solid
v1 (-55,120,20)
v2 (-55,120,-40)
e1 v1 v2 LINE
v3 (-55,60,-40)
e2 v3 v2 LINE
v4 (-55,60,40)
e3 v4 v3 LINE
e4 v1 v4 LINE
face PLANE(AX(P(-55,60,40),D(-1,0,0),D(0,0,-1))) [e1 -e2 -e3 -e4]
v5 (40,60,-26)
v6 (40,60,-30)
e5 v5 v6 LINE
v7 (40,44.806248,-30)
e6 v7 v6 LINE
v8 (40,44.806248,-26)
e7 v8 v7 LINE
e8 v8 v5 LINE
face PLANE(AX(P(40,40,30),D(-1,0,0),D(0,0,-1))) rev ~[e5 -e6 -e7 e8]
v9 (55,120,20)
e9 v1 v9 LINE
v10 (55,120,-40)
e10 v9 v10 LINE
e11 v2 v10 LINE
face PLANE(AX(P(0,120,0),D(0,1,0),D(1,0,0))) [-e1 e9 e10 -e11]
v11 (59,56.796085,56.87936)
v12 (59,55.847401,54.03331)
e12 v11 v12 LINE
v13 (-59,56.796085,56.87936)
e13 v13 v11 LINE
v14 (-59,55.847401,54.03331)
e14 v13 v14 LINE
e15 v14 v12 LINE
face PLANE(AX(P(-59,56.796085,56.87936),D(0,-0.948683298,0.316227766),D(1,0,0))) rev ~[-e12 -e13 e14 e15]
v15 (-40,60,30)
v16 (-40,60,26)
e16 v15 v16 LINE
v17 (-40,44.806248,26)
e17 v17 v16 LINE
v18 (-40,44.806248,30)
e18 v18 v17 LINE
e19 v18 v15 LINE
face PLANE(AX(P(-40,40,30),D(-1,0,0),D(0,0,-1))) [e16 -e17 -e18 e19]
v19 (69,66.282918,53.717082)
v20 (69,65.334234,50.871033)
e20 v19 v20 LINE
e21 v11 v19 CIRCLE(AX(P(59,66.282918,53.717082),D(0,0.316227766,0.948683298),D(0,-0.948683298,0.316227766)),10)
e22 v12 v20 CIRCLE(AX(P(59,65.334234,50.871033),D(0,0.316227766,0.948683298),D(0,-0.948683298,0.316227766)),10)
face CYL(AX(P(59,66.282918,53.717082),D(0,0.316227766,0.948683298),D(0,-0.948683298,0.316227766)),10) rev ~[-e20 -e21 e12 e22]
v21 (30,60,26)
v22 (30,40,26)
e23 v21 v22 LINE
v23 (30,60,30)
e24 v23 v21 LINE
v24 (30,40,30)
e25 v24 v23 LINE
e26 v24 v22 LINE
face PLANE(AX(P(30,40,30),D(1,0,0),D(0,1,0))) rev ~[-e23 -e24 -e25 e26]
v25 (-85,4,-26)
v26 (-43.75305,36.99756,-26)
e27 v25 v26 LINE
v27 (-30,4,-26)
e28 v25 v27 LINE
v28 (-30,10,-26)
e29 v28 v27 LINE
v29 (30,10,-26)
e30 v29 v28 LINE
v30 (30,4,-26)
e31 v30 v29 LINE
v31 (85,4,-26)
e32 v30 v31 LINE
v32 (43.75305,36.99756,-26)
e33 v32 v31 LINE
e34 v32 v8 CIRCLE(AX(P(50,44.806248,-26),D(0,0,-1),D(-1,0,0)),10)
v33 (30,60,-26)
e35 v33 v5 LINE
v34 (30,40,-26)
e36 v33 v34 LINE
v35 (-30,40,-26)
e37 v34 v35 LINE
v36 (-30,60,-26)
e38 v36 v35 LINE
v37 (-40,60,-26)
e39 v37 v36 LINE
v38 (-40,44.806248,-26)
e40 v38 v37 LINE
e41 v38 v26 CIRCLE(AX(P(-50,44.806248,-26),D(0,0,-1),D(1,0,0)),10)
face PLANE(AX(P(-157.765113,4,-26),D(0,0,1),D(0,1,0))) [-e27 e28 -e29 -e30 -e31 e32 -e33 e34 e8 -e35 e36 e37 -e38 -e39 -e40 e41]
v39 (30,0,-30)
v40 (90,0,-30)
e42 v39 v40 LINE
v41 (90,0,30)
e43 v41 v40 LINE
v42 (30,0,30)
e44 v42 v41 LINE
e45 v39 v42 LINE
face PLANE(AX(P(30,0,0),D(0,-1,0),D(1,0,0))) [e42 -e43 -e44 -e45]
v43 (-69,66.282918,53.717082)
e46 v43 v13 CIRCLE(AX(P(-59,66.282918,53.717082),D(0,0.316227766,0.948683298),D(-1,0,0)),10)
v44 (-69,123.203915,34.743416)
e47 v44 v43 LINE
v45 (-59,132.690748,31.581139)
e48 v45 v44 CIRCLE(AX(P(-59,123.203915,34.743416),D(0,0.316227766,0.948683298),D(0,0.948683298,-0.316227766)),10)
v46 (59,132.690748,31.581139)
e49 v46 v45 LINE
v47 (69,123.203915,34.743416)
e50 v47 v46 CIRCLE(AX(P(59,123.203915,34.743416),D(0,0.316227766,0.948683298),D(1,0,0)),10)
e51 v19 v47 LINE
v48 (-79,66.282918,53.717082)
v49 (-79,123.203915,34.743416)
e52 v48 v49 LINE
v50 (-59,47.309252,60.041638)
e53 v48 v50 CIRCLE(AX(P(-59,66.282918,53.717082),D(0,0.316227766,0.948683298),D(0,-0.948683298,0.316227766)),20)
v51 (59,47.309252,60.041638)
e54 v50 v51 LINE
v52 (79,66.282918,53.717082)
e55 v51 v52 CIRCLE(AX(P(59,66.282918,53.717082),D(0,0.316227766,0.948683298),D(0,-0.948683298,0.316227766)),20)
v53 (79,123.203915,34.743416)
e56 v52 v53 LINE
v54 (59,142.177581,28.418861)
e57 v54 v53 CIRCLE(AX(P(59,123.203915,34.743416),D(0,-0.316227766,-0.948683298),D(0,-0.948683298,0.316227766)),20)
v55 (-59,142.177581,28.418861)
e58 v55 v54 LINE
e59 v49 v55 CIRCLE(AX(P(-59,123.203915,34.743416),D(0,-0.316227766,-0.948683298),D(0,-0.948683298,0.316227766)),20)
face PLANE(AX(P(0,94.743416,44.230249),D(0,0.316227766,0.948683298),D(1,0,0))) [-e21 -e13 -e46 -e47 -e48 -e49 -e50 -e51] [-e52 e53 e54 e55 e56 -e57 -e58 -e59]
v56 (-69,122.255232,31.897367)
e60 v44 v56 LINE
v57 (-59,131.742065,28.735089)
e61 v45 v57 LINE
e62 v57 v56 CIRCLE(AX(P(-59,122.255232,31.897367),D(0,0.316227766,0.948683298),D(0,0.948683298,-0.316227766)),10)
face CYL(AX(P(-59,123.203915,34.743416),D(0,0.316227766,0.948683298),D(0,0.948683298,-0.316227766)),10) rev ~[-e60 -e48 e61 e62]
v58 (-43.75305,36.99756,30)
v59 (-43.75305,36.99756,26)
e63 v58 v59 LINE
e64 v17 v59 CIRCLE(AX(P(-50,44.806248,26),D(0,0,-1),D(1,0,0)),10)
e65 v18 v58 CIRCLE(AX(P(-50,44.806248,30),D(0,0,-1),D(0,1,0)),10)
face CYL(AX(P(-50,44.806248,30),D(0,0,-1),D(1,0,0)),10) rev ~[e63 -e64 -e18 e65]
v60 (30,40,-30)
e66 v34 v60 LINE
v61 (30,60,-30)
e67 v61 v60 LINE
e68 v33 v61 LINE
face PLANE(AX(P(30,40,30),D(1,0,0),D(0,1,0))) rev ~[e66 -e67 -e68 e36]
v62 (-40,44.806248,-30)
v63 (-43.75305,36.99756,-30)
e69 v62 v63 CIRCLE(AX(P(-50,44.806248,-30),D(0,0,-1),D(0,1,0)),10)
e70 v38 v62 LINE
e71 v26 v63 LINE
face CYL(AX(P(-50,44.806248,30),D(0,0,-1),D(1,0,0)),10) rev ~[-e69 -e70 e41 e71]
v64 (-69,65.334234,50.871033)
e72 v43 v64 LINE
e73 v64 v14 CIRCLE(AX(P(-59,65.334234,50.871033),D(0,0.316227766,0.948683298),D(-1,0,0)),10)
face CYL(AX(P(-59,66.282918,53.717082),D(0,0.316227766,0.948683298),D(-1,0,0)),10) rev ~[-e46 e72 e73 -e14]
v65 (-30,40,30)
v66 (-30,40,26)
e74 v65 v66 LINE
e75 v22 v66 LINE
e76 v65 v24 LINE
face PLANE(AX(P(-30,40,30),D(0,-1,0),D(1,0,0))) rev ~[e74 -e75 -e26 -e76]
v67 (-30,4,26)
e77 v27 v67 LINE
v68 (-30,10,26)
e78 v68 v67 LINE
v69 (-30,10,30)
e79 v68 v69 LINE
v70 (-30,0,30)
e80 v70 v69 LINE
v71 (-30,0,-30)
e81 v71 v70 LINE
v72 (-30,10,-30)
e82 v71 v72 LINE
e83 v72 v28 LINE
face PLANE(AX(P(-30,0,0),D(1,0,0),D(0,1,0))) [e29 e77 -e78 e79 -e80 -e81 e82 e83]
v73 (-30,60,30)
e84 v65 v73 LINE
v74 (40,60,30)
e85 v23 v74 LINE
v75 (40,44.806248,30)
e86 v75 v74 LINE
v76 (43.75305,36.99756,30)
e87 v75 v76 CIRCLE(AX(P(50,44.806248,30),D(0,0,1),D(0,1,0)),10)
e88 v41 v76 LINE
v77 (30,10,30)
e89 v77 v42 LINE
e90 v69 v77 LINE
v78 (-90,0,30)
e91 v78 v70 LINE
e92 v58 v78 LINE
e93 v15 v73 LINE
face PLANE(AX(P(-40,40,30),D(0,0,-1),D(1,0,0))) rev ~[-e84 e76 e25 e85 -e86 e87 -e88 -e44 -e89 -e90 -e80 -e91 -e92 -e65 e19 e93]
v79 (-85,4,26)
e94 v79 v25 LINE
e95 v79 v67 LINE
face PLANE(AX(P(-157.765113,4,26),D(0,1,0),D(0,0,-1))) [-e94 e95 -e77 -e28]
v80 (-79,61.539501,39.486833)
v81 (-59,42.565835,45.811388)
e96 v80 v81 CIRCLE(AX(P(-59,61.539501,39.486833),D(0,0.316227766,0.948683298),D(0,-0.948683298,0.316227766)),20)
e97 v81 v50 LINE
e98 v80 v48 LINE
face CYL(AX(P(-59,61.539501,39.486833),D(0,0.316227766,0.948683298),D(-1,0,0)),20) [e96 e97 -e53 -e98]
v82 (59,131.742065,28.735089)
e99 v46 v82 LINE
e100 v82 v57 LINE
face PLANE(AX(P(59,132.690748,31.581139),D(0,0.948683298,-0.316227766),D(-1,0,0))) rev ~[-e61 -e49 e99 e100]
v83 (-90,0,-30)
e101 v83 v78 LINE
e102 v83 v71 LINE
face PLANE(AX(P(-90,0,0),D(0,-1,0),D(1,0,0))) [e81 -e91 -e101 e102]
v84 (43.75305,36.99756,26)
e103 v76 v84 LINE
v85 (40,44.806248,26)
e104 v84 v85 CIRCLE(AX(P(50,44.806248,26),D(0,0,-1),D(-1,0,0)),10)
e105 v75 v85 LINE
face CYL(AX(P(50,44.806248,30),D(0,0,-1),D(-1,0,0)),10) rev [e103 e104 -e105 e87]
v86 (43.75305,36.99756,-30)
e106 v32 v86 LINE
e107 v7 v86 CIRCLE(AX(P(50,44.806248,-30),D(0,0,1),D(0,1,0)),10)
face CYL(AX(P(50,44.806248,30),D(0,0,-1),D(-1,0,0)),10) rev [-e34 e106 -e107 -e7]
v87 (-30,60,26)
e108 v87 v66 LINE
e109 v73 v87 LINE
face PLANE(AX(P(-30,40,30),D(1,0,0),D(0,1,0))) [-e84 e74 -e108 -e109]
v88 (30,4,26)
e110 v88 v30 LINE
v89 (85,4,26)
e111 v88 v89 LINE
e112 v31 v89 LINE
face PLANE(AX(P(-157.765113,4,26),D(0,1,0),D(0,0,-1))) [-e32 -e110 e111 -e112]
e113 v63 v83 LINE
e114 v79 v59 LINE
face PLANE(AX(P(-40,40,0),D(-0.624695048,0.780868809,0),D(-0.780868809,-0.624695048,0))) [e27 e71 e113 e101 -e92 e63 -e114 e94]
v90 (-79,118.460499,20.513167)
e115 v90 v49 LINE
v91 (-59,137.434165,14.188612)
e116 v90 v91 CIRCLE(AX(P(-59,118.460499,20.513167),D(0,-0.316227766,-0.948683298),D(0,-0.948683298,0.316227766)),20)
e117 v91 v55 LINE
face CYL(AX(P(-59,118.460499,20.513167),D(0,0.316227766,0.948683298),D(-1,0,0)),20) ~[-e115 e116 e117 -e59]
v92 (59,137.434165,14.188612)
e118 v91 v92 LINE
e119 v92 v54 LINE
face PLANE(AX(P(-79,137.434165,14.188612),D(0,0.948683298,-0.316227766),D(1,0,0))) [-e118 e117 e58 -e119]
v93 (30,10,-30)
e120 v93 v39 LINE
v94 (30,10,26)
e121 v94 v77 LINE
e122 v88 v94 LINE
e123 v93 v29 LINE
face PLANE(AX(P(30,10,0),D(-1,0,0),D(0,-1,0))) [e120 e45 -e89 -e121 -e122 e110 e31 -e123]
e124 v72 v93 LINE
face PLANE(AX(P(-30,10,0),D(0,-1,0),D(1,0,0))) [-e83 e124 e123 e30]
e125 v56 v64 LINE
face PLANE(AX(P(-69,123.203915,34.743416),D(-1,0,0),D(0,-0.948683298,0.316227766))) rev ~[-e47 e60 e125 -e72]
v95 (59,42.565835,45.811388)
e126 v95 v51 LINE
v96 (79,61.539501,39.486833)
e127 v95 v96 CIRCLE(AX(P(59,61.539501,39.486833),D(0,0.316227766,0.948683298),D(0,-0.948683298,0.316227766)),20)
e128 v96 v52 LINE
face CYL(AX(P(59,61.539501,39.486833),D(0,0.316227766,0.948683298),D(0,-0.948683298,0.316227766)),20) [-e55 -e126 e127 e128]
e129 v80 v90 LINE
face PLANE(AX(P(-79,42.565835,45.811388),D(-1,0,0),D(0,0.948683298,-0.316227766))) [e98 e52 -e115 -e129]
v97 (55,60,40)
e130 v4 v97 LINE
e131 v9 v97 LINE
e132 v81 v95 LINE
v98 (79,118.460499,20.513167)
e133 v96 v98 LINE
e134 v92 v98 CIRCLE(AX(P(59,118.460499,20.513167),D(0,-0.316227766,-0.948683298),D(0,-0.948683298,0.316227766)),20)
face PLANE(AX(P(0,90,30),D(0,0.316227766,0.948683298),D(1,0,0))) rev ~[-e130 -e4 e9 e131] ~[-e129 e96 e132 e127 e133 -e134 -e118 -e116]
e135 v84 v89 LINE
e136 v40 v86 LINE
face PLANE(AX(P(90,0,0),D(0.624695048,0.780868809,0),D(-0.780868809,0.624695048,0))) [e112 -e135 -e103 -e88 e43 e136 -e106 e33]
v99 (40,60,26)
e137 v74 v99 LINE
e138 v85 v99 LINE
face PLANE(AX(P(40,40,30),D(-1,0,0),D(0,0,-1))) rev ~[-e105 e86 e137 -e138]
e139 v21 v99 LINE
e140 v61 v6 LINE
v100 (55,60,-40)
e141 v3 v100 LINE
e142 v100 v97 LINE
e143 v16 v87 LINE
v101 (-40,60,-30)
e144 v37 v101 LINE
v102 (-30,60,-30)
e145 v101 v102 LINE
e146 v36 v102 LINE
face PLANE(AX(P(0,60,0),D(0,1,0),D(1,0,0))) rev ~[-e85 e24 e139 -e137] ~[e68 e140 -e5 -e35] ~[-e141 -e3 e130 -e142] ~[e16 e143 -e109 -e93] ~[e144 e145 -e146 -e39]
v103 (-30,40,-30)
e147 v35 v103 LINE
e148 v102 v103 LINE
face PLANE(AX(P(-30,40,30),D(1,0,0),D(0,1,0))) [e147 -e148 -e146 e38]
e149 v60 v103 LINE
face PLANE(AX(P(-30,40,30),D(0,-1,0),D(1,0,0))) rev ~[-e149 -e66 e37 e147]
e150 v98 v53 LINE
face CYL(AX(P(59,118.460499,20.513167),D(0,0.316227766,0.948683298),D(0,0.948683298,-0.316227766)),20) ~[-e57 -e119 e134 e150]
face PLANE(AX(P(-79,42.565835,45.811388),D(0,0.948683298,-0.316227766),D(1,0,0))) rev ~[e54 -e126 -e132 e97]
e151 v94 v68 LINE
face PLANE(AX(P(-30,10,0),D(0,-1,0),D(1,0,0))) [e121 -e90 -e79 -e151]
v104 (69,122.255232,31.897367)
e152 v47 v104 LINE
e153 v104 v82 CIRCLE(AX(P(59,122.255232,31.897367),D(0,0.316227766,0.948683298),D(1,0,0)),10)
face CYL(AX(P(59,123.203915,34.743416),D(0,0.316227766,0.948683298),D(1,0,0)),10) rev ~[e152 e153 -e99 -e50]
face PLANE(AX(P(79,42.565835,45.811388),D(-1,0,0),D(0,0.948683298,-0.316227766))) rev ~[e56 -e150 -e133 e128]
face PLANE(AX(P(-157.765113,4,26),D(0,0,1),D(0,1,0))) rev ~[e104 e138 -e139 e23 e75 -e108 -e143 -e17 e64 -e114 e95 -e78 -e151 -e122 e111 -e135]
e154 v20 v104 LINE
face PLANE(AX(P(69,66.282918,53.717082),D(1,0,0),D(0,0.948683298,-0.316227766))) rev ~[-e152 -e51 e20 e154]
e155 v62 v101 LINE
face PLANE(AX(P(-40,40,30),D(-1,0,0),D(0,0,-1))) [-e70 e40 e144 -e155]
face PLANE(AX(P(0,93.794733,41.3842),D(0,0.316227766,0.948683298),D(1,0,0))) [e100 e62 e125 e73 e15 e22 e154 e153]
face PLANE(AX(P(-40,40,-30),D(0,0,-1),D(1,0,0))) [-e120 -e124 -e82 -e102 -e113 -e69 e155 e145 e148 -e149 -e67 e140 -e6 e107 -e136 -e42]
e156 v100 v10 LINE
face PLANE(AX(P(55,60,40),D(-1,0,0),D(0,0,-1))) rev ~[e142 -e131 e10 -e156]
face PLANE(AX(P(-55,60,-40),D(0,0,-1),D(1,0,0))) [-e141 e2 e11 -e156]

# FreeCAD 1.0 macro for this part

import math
import FreeCAD as App
import Part
import Sketcher

V = App.Vector
Q = App.Units.Quantity


def edges_at(feature, points):
    """Names of the edges that pass closest to the given points."""
    edges = feature.Shape.Edges
    near = lambda p: min(range(len(edges)), key=lambda i: edges[i].distToShape(Part.Vertex(*p))[0])
    return sorted({f"Edge{near(p) + 1}" for p in points})

doc = App.newDocument("Part")
body = doc.addObject("PartDesign::Body", "Body")

sketch1 = body.newObject("Sketcher::SketchObject", "Sketch")
sketch1.AttachmentSupport = (doc.getObject("XY_Plane"), [""])
sketch1.MapMode = "FlatFace"
sketch1.addGeometry([
    Part.LineSegment(V(-40, 40, 0), V(-90, 0, 0)),
    Part.LineSegment(V(-90, 0, 0), V(-30, 0, 0)),
    Part.LineSegment(V(-30, 0, 0), V(-30, 10, 0)),
    Part.LineSegment(V(-30, 10, 0), V(30, 10, 0)),
    Part.LineSegment(V(30, 10, 0), V(30, 0, 0)),
    Part.LineSegment(V(30, 0, 0), V(90, 0, 0)),
    Part.LineSegment(V(90, 0, 0), V(40, 40, 0)),
    Part.LineSegment(V(40, 40, 0), V(-40, 40, 0)),
], False)
sketch1.addConstraint([
    Sketcher.Constraint("Coincident", 0, 2, 1, 1),
    Sketcher.Constraint("Coincident", 1, 2, 2, 1),
    Sketcher.Constraint("Coincident", 2, 2, 3, 1),
    Sketcher.Constraint("Coincident", 3, 2, 4, 1),
    Sketcher.Constraint("Coincident", 4, 2, 5, 1),
    Sketcher.Constraint("Coincident", 5, 2, 6, 1),
    Sketcher.Constraint("Coincident", 6, 2, 7, 1),
    Sketcher.Constraint("Coincident", 7, 2, 0, 1),
    Sketcher.Constraint("Horizontal", 1),
    Sketcher.Constraint("Vertical", 2),
    Sketcher.Constraint("Horizontal", 3),
    Sketcher.Constraint("Vertical", 4),
    Sketcher.Constraint("Horizontal", 5),
    Sketcher.Constraint("Horizontal", 7),
    Sketcher.Constraint("Symmetric", 1, 2, 4, 2, -1, 1),
    Sketcher.Constraint("Symmetric", 0, 2, 5, 2, -2),
    Sketcher.Constraint("Equal", 1, 3),
    Sketcher.Constraint("Equal", 0, 6),
    Sketcher.Constraint("DistanceX", 1, 1, 1, 2, Q("60 mm")),
    Sketcher.Constraint("DistanceX", 7, 2, 7, 1, Q("80 mm")),
    Sketcher.Constraint("DistanceY", 2, 1, 2, 2, Q("10 mm")),
    Sketcher.Constraint("DistanceY", -1, 1, 6, 2, Q("40 mm")),
])
pad1 = body.newObject("PartDesign::Pad", "Pad")
pad1.Profile = sketch1
pad1.Length = 60
pad1.Midplane = True

sketch2 = body.newObject("Sketcher::SketchObject", "Sketch001")
sketch2.AttachmentSupport = (doc.getObject("XZ_Plane"), [""])
sketch2.MapMode = "FlatFace"
sketch2.AttachmentOffset = App.Placement(V(0, 0, -40), App.Rotation())
sketch2.addGeometry([
    Part.LineSegment(V(-40, -30, 0), V(-40, 30, 0)),
    Part.LineSegment(V(-40, 30, 0), V(40, 30, 0)),
    Part.LineSegment(V(40, 30, 0), V(40, -30, 0)),
    Part.LineSegment(V(40, -30, 0), V(-40, -30, 0)),
], False)
sketch2.addConstraint([
    Sketcher.Constraint("Coincident", 0, 2, 1, 1),
    Sketcher.Constraint("Coincident", 1, 2, 2, 1),
    Sketcher.Constraint("Coincident", 2, 2, 3, 1),
    Sketcher.Constraint("Coincident", 3, 2, 0, 1),
    Sketcher.Constraint("Vertical", 0),
    Sketcher.Constraint("Horizontal", 1),
    Sketcher.Constraint("Vertical", 2),
    Sketcher.Constraint("Horizontal", 3),
    Sketcher.Constraint("Symmetric", 0, 2, 2, 2, -1, 1),
    Sketcher.Constraint("DistanceX", 1, 1, 1, 2, Q("80 mm")),
    Sketcher.Constraint("DistanceY", 0, 1, 0, 2, Q("60 mm")),
])
pad2 = body.newObject("PartDesign::Pad", "Pad001")
pad2.Profile = sketch2
pad2.Length = 20
pad2.Reversed = True
doc.recompute()

fillet = body.newObject("PartDesign::Fillet", "Fillet")
fillet.Base = (pad2, edges_at(pad2, [(40, 40, 0), (-40, 40, 0)]))
fillet.Radius = 10

sketch3 = body.newObject("Sketcher::SketchObject", "Sketch002")
sketch3.AttachmentSupport = (doc.getObject("XY_Plane"), [""])
sketch3.MapMode = "FlatFace"
sketch3.AttachmentOffset = App.Placement(V(0, 0, 30), App.Rotation())
sketch3.addGeometry([
    Part.LineSegment(V(-30, 60, 0), V(-30, 40, 0)),
    Part.LineSegment(V(-30, 40, 0), V(30, 40, 0)),
    Part.LineSegment(V(30, 40, 0), V(30, 60, 0)),
    Part.LineSegment(V(30, 60, 0), V(-30, 60, 0)),
], False)
sketch3.addConstraint([
    Sketcher.Constraint("Coincident", 0, 2, 1, 1),
    Sketcher.Constraint("Coincident", 1, 2, 2, 1),
    Sketcher.Constraint("Coincident", 2, 2, 3, 1),
    Sketcher.Constraint("Coincident", 3, 2, 0, 1),
    Sketcher.Constraint("Vertical", 0),
    Sketcher.Constraint("Horizontal", 1),
    Sketcher.Constraint("Vertical", 2),
    Sketcher.Constraint("Horizontal", 3),
    Sketcher.Constraint("DistanceX", 1, 1, 1, 2, Q("60 mm")),
    Sketcher.Constraint("DistanceY", 0, 2, 0, 1, Q("20 mm")),
    Sketcher.Constraint("DistanceX", 0, 2, -1, 1, Q("30 mm")),
    Sketcher.Constraint("DistanceY", -1, 1, 0, 2, Q("40 mm")),
])
pocket1 = body.newObject("PartDesign::Pocket", "Pocket")
pocket1.Profile = sketch3
pocket1.Type = "ThroughAll"

sketch4 = body.newObject("Sketcher::SketchObject", "Sketch003")
sketch4.AttachmentSupport = (doc.getObject("XZ_Plane"), [""])
sketch4.MapMode = "FlatFace"
sketch4.AttachmentOffset = App.Placement(V(0, 0, -60), App.Rotation())
sketch4.addGeometry([
    Part.LineSegment(V(-55, -40, 0), V(-55, 40, 0)),
    Part.LineSegment(V(-55, 40, 0), V(55, 40, 0)),
    Part.LineSegment(V(55, 40, 0), V(55, -40, 0)),
    Part.LineSegment(V(55, -40, 0), V(-55, -40, 0)),
], False)
sketch4.addConstraint([
    Sketcher.Constraint("Coincident", 0, 2, 1, 1),
    Sketcher.Constraint("Coincident", 1, 2, 2, 1),
    Sketcher.Constraint("Coincident", 2, 2, 3, 1),
    Sketcher.Constraint("Coincident", 3, 2, 0, 1),
    Sketcher.Constraint("Vertical", 0),
    Sketcher.Constraint("Horizontal", 1),
    Sketcher.Constraint("Vertical", 2),
    Sketcher.Constraint("Horizontal", 3),
    Sketcher.Constraint("Symmetric", 0, 2, 2, 2, -1, 1),
    Sketcher.Constraint("DistanceX", 1, 1, 1, 2, Q("110 mm")),
    Sketcher.Constraint("DistanceY", 0, 1, 0, 2, Q("80 mm")),
])
pad3 = body.newObject("PartDesign::Pad", "Pad002")
pad3.Profile = sketch4
pad3.Length = 60
pad3.Reversed = True

sketch5 = body.newObject("Sketcher::SketchObject", "Sketch004")
sketch5.AttachmentSupport = (doc.getObject("YZ_Plane"), [""])
sketch5.MapMode = "FlatFace"
sketch5.AttachmentOffset = App.Placement(V(0, 0, -55), App.Rotation())
sketch5.addGeometry([
    Part.LineSegment(V(120, 20, 0), V(60, 40, 0)),
    Part.LineSegment(V(60, 40, 0), V(120, 40, 0)),
    Part.LineSegment(V(120, 40, 0), V(120, 20, 0)),
], False)
sketch5.addConstraint([
    Sketcher.Constraint("Coincident", 0, 2, 1, 1),
    Sketcher.Constraint("Coincident", 1, 2, 2, 1),
    Sketcher.Constraint("Coincident", 2, 2, 0, 1),
    Sketcher.Constraint("Horizontal", 1),
    Sketcher.Constraint("Vertical", 2),
    Sketcher.Constraint("DistanceX", 1, 1, 1, 2, Q("60 mm")),
    Sketcher.Constraint("DistanceY", 2, 2, 2, 1, Q("20 mm")),
    Sketcher.Constraint("DistanceX", -1, 1, 0, 2, Q("60 mm")),
    Sketcher.Constraint("DistanceY", -1, 1, 0, 2, Q("40 mm")),
])
pocket2 = body.newObject("PartDesign::Pocket", "Pocket001")
pocket2.Profile = sketch5
pocket2.Type = "ThroughAll"
pocket2.Reversed = True

sketch6 = body.newObject("Sketcher::SketchObject", "Sketch005")
sketch6.Placement = App.Placement(V(0, 18, 54), App.Rotation(V(1, 0, 0), V(0, 0.948683298, -0.316227766), V(0, 0.316227766, 0.948683298), "ZXY"))
sketch6.addGeometry([
    Part.LineSegment(V(-79, 126, 0), V(-79, 26, 0)),
    Part.LineSegment(V(-79, 26, 0), V(79, 26, 0)),
    Part.LineSegment(V(79, 26, 0), V(79, 126, 0)),
    Part.LineSegment(V(79, 126, 0), V(-79, 126, 0)),
], False)
sketch6.addConstraint([
    Sketcher.Constraint("Coincident", 0, 2, 1, 1),
    Sketcher.Constraint("Coincident", 1, 2, 2, 1),
    Sketcher.Constraint("Coincident", 2, 2, 3, 1),
    Sketcher.Constraint("Coincident", 3, 2, 0, 1),
    Sketcher.Constraint("Vertical", 0),
    Sketcher.Constraint("Horizontal", 1),
    Sketcher.Constraint("Vertical", 2),
    Sketcher.Constraint("Horizontal", 3),
    Sketcher.Constraint("DistanceX", 1, 1, 1, 2, Q("158 mm")),
    Sketcher.Constraint("DistanceY", 0, 2, 0, 1, Q("100 mm")),
    Sketcher.Constraint("DistanceX", 0, 2, -1, 1, Q("79 mm")),
    Sketcher.Constraint("DistanceY", -1, 1, 0, 2, Q("25.894664 mm")),
])
pad4 = body.newObject("PartDesign::Pad", "Pad003")
pad4.Profile = sketch6
pad4.Length = 15
doc.recompute()

fillet2 = body.newObject("PartDesign::Fillet", "Fillet001")
fillet2.Base = (pad4, edges_at(pad4, [
    (-79, 44.938, 52.927),
    (79, 44.938, 52.927),
    (79, 139.806, 21.304),
    (-79, 139.806, 21.304),
]))
fillet2.Radius = 20

sketch7 = body.newObject("Sketcher::SketchObject", "Sketch006")
sketch7.Placement = App.Placement(V(0, 22.743416, 68.230249), App.Rotation(V(1, 0, 0), V(0, 0.948683298, -0.316227766), V(0, 0.316227766, 0.948683298), "ZXY"))
sketch7.addGeometry([
    Part.LineSegment(V(69, 46, 0), V(69, 106, 0)),
    Part.ArcOfCircle(Part.Circle(V(59, 106, 0), V(0, 0, 1), 10), math.radians(0), math.radians(90)),
    Part.LineSegment(V(59, 116, 0), V(-59, 116, 0)),
    Part.ArcOfCircle(Part.Circle(V(-59, 106, 0), V(0, 0, 1), 10), math.radians(90), math.radians(180)),
    Part.LineSegment(V(-69, 106, 0), V(-69, 46, 0)),
    Part.ArcOfCircle(Part.Circle(V(-59, 46, 0), V(0, 0, 1), 10), math.radians(180), math.radians(270)),
    Part.LineSegment(V(-59, 36, 0), V(59, 36, 0)),
    Part.ArcOfCircle(Part.Circle(V(59, 46, 0), V(0, 0, 1), 10), math.radians(-90), math.radians(0)),
], False)
sketch7.addConstraint([
    Sketcher.Constraint("Tangent", 0, 2, 1, 1),
    Sketcher.Constraint("Tangent", 1, 2, 2, 1),
    Sketcher.Constraint("Tangent", 2, 2, 3, 1),
    Sketcher.Constraint("Tangent", 3, 2, 4, 1),
    Sketcher.Constraint("Tangent", 4, 2, 5, 1),
    Sketcher.Constraint("Tangent", 5, 2, 6, 1),
    Sketcher.Constraint("Tangent", 6, 2, 7, 1),
    Sketcher.Constraint("Tangent", 7, 2, 0, 1),
    Sketcher.Constraint("Vertical", 0),
    Sketcher.Constraint("Horizontal", 2),
    Sketcher.Constraint("Vertical", 4),
    Sketcher.Constraint("Horizontal", 6),
    Sketcher.Constraint("Equal", 1, 3),
    Sketcher.Constraint("Equal", 3, 5),
    Sketcher.Constraint("Equal", 5, 7),
    Sketcher.Constraint("Radius", 1, Q("10 mm")),
    Sketcher.Constraint("DistanceX", 2, 2, 2, 1, Q("118 mm")),
    Sketcher.Constraint("DistanceY", 0, 1, 0, 2, Q("60 mm")),
    Sketcher.Constraint("DistanceX", -1, 1, 1, 3, Q("59 mm")),
    Sketcher.Constraint("DistanceY", -1, 1, 1, 3, Q("105.894664 mm")),
])
pocket3 = body.newObject("PartDesign::Pocket", "Pocket002")
pocket3.Profile = sketch7
pocket3.Length = 3

sketch8 = body.newObject("Sketcher::SketchObject", "Sketch007")
sketch8.AttachmentSupport = (doc.getObject("YZ_Plane"), [""])
sketch8.MapMode = "FlatFace"
sketch8.AttachmentOffset = App.Placement(V(0, 0, 55), App.Rotation())
sketch8.addGeometry([
    Part.LineSegment(V(60, 26, 0), V(4, 26, 0)),
    Part.LineSegment(V(4, 26, 0), V(4, -26, 0)),
    Part.LineSegment(V(4, -26, 0), V(60, -26, 0)),
    Part.LineSegment(V(60, -26, 0), V(60, 26, 0)),
], False)
sketch8.addConstraint([
    Sketcher.Constraint("Coincident", 0, 2, 1, 1),
    Sketcher.Constraint("Coincident", 1, 2, 2, 1),
    Sketcher.Constraint("Coincident", 2, 2, 3, 1),
    Sketcher.Constraint("Coincident", 3, 2, 0, 1),
    Sketcher.Constraint("Horizontal", 0),
    Sketcher.Constraint("Vertical", 1),
    Sketcher.Constraint("Horizontal", 2),
    Sketcher.Constraint("Vertical", 3),
    Sketcher.Constraint("DistanceX", 0, 2, 0, 1, Q("56 mm")),
    Sketcher.Constraint("DistanceY", 1, 2, 1, 1, Q("52 mm")),
    Sketcher.Constraint("DistanceX", -1, 1, 0, 2, Q("4 mm")),
    Sketcher.Constraint("DistanceY", -1, 1, 0, 2, Q("26 mm")),
])
pocket4 = body.newObject("PartDesign::Pocket", "Pocket003")
pocket4.Profile = sketch8
pocket4.Type = "ThroughAll"
pocket4.Midplane = True

doc.recompute()
